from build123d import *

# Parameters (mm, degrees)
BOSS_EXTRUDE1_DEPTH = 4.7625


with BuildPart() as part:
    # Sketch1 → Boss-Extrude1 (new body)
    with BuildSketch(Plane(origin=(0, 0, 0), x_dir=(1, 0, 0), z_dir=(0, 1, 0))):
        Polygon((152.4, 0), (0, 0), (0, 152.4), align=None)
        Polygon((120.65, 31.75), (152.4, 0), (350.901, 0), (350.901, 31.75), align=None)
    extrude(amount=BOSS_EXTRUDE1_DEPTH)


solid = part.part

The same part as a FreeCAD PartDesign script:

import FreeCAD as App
import Part
import Sketcher
Q = App.Units.Quantity

doc = App.newDocument("Part")
body = doc.addObject("PartDesign::Body", "Body")

# Sketch on XZ plane
sketch1 = doc.addObject("Sketcher::SketchObject", "Sketch")
body.addObject(sketch1)
sketch1.AttachmentSupport = (doc.XZ_Plane, [""])
sketch1.MapMode = "FlatFace"
sketch1.addGeometry(Part.LineSegment(App.Vector(0, 0, 0), App.Vector(351, 0, 0)), False)
sketch1.addGeometry(Part.LineSegment(App.Vector(351, 0, 0), App.Vector(351, -32, 0)), False)
sketch1.addGeometry(Part.LineSegment(App.Vector(351, -32, 0), App.Vector(121, -32, 0)), False)
sketch1.addGeometry(Part.LineSegment(App.Vector(121, -32, 0), App.Vector(0, -152, 0)), False)
sketch1.addGeometry(Part.LineSegment(App.Vector(0, -152, 0), App.Vector(0, 0, 0)), False)
sketch1.addConstraint(Sketcher.Constraint("Coincident", 0, 2, 1, 1))
sketch1.addConstraint(Sketcher.Constraint("Coincident", 1, 2, 2, 1))
sketch1.addConstraint(Sketcher.Constraint("Coincident", 2, 2, 3, 1))
sketch1.addConstraint(Sketcher.Constraint("Coincident", 3, 2, 4, 1))
sketch1.addConstraint(Sketcher.Constraint("Coincident", 4, 2, 0, 1))
sketch1.addConstraint(Sketcher.Constraint("Horizontal", 0))
sketch1.addConstraint(Sketcher.Constraint("Vertical", 1))
sketch1.addConstraint(Sketcher.Constraint("Horizontal", 2))
sketch1.addConstraint(Sketcher.Constraint("Vertical", 4))
sketch1.addConstraint(Sketcher.Constraint("Coincident", 4, 2, -1, 1))
sketch1.addConstraint(Sketcher.Constraint("DistanceY", 4, 1, 4, 2, Q("6 in")))
sketch1.addConstraint(Sketcher.Constraint("Angle", 3, Q("-135 deg")))
sketch1.addConstraint(Sketcher.Constraint("DistanceY", 1, 2, 1, 1, Q("1.25 in")))
sketch1.addConstraint(Sketcher.Constraint("DistanceX", 0, 1, 0, 2, Q("13.815 in")))
pad1 = doc.addObject("PartDesign::Pad", "Pad")
body.addObject(pad1)
pad1.Profile = sketch1
pad1.Length = Q("0.1875 in")
pad1.Reversed = True

doc.recompute()
